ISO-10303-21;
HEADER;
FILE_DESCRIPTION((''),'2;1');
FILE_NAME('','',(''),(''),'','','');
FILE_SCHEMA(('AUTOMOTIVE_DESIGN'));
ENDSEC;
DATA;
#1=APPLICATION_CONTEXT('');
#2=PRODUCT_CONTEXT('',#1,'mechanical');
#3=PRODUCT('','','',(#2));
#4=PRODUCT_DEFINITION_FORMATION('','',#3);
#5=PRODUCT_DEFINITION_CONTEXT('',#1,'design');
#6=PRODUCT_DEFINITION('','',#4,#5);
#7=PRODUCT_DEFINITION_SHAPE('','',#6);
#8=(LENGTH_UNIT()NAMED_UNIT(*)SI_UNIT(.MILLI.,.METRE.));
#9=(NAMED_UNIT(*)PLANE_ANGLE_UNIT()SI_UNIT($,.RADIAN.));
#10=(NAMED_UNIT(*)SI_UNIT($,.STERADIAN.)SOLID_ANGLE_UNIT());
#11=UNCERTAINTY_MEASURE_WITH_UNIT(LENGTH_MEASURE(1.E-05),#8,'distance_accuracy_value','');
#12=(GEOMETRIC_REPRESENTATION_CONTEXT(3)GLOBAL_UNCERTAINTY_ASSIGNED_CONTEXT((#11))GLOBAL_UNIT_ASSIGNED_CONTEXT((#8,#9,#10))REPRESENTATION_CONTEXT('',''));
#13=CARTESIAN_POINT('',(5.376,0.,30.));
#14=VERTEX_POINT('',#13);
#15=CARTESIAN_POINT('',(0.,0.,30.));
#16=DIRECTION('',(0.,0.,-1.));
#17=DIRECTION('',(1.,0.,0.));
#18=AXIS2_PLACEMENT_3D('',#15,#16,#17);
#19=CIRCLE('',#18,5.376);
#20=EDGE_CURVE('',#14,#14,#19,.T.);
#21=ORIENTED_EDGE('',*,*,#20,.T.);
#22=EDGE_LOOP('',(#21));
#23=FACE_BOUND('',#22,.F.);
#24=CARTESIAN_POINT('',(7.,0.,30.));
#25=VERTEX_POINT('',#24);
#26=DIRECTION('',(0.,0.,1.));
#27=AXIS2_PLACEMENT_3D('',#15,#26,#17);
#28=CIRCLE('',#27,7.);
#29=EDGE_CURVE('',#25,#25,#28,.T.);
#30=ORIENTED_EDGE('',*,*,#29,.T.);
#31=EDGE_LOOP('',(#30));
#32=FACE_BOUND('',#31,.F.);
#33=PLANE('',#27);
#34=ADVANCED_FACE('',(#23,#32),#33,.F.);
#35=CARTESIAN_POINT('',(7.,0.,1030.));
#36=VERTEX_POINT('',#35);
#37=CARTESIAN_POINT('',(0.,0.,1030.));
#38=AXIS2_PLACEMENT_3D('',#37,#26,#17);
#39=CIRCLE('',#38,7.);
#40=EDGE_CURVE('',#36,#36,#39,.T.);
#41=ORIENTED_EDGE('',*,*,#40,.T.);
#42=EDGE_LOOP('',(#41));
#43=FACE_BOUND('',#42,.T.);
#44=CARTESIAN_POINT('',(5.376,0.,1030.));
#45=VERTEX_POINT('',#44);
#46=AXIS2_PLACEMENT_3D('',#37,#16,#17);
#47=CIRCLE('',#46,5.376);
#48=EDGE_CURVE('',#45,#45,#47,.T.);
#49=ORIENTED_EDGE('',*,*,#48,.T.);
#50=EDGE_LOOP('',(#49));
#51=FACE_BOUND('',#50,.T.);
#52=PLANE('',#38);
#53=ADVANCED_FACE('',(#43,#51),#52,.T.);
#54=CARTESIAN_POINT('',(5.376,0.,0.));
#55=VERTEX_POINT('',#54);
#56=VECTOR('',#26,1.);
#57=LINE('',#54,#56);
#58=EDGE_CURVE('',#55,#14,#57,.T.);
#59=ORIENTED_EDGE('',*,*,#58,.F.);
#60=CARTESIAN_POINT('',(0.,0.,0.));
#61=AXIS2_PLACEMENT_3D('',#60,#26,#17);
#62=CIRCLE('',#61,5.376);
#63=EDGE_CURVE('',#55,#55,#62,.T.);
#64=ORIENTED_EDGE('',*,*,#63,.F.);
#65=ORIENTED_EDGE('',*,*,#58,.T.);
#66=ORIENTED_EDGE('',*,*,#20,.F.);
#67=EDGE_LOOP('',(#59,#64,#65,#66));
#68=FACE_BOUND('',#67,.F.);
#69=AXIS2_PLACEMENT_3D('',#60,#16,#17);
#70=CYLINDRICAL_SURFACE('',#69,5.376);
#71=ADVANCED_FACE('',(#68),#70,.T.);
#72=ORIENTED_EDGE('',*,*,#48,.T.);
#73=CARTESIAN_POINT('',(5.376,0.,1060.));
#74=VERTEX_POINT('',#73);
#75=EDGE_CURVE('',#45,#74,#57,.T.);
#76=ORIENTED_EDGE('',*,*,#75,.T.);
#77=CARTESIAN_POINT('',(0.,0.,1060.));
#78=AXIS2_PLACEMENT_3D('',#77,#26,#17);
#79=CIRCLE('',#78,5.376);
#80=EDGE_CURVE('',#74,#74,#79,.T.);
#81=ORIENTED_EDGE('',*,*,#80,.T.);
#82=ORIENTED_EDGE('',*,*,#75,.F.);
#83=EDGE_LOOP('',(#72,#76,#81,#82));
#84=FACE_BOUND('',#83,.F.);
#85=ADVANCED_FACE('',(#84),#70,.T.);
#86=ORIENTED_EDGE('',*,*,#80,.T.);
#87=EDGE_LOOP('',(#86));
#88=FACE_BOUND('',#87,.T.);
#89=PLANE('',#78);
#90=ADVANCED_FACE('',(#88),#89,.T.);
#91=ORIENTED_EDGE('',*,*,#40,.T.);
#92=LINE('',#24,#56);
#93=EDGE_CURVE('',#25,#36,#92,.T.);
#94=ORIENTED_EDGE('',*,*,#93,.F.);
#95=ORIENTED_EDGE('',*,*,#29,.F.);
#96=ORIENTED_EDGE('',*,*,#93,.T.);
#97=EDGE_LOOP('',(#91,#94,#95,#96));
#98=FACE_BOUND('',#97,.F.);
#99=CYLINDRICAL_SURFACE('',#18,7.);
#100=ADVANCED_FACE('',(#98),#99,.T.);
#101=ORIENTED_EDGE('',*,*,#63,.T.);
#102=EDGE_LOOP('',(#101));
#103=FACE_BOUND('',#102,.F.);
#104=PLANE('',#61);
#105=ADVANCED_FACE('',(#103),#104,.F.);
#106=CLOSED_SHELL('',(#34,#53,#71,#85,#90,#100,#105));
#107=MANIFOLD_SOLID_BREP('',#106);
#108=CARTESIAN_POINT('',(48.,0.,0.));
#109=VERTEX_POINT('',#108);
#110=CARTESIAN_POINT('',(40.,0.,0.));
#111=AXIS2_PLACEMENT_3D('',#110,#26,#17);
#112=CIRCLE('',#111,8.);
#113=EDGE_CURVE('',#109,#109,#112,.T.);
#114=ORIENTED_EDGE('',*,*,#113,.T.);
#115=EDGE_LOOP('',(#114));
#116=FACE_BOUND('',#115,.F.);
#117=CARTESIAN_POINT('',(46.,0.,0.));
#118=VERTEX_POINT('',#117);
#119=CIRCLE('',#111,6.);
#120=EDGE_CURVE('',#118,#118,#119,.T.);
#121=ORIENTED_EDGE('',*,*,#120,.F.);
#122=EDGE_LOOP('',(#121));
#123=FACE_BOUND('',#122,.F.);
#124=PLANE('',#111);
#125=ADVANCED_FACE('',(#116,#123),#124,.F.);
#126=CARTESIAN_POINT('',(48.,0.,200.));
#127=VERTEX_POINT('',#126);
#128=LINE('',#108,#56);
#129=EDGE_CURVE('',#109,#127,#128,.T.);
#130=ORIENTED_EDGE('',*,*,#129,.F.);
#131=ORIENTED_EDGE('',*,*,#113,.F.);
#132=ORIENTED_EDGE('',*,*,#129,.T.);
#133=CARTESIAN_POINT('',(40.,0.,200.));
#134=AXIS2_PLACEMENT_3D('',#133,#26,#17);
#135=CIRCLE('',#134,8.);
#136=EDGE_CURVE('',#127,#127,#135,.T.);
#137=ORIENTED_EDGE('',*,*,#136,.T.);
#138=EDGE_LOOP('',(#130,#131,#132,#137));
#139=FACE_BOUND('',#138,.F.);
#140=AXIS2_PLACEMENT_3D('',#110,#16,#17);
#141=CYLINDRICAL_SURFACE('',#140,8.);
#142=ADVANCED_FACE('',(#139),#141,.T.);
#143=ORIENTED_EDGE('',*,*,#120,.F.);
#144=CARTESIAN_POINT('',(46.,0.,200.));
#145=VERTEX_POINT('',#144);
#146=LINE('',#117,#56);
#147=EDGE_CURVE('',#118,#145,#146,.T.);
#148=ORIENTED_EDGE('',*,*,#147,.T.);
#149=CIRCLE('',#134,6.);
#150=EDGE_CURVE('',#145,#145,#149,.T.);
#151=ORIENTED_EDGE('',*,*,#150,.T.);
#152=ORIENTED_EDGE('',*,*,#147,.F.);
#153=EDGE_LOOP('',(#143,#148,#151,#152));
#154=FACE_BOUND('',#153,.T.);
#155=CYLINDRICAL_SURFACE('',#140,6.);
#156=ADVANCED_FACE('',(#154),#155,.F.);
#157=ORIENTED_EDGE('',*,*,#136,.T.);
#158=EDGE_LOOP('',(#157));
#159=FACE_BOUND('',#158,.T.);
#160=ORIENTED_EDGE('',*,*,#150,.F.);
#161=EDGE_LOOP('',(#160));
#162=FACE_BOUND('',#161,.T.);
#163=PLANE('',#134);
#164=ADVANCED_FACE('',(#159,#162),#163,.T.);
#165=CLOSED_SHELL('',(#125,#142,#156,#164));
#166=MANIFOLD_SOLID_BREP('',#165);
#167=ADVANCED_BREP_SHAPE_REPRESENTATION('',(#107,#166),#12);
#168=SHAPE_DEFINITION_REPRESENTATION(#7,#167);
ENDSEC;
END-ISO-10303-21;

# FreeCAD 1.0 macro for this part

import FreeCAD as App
import Part
import Sketcher
from FreeCAD import Vector
Q = App.Units.Quantity

doc = App.newDocument("Part")
params = doc.addObject("Spreadsheet::Sheet", "Params")
for row, (alias, value) in enumerate([
    ("pad1_length", "1060 mm"),
    ("sketch2_diameter", "14 mm"),
    ("pad2_length", "1000 mm"),
    ("sketch3_diameter", "16 mm"),
    ("sketch3_diameter2", "12 mm"),
    ("pad3_length", "200 mm"),
], start=1):
    params.set(f"A{row}", alias)
    params.set(f"B{row}", "=" + value)
    params.setAlias(f"B{row}", alias)

body = doc.addObject("PartDesign::Body", "Body")

sketch1 = body.newObject("Sketcher::SketchObject", "Sketch")
sketch1.AttachmentSupport = (doc.getObject("XY_Plane"), [""])
sketch1.MapMode = "FlatFace"
sketch1.addGeometry(Part.Circle(Vector(0, 0, 0), Vector(0, 0, 1), 5), False)
sketch1.addConstraint(Sketcher.Constraint("Coincident", 0, 3, -1, 1))
sketch1.addConstraint(Sketcher.Constraint("Diameter", 0, Q("10.752 mm")))
pad1 = body.newObject("PartDesign::Pad", "Pad")
pad1.Profile = sketch1
pad1.setExpression("Length", "Params.pad1_length")

sketch2 = body.newObject("Sketcher::SketchObject", "Sketch001")
sketch2.AttachmentSupport = (doc.getObject("XY_Plane"), [""])
sketch2.MapMode = "FlatFace"
sketch2.AttachmentOffset = App.Placement(Vector(0, 0, 30), App.Rotation())
sketch2.addGeometry(Part.Circle(Vector(0, 0, 0), Vector(0, 0, 1), 7), False)
sketch2.addConstraint(Sketcher.Constraint("Coincident", 0, 3, -1, 1))
sketch2.addConstraint(Sketcher.Constraint("Diameter", 0, Q("14 mm")))
sketch2.setExpression("Constraints[1]", "Params.sketch2_diameter")
pad2 = body.newObject("PartDesign::Pad", "Pad001")
pad2.Profile = sketch2
pad2.setExpression("Length", "Params.pad2_length")
body2 = doc.addObject("PartDesign::Body", "Body001")

sketch3 = body2.newObject("Sketcher::SketchObject", "Sketch002")
sketch3.AttachmentSupport = (doc.getObject("XY_Plane001"), [""])
sketch3.MapMode = "FlatFace"
sketch3.addGeometry(Part.Circle(Vector(40, 0, 0), Vector(0, 0, 1), 8), False)
sketch3.addGeometry(Part.Circle(Vector(40, 0, 0), Vector(0, 0, 1), 6), False)
sketch3.addConstraint(Sketcher.Constraint("Coincident", 1, 3, 0, 3))
sketch3.addConstraint(Sketcher.Constraint("PointOnObject", 0, 3, -1))
sketch3.addConstraint(Sketcher.Constraint("Diameter", 0, Q("16 mm")))
sketch3.addConstraint(Sketcher.Constraint("Diameter", 1, Q("12 mm")))
sketch3.addConstraint(Sketcher.Constraint("DistanceX", -1, 1, 0, 3, Q("40 mm")))
sketch3.setExpression("Constraints[2]", "Params.sketch3_diameter")
sketch3.setExpression("Constraints[3]", "Params.sketch3_diameter2")
pad3 = body2.newObject("PartDesign::Pad", "Pad002")
pad3.Profile = sketch3
pad3.setExpression("Length", "Params.pad3_length")

doc.recompute()
